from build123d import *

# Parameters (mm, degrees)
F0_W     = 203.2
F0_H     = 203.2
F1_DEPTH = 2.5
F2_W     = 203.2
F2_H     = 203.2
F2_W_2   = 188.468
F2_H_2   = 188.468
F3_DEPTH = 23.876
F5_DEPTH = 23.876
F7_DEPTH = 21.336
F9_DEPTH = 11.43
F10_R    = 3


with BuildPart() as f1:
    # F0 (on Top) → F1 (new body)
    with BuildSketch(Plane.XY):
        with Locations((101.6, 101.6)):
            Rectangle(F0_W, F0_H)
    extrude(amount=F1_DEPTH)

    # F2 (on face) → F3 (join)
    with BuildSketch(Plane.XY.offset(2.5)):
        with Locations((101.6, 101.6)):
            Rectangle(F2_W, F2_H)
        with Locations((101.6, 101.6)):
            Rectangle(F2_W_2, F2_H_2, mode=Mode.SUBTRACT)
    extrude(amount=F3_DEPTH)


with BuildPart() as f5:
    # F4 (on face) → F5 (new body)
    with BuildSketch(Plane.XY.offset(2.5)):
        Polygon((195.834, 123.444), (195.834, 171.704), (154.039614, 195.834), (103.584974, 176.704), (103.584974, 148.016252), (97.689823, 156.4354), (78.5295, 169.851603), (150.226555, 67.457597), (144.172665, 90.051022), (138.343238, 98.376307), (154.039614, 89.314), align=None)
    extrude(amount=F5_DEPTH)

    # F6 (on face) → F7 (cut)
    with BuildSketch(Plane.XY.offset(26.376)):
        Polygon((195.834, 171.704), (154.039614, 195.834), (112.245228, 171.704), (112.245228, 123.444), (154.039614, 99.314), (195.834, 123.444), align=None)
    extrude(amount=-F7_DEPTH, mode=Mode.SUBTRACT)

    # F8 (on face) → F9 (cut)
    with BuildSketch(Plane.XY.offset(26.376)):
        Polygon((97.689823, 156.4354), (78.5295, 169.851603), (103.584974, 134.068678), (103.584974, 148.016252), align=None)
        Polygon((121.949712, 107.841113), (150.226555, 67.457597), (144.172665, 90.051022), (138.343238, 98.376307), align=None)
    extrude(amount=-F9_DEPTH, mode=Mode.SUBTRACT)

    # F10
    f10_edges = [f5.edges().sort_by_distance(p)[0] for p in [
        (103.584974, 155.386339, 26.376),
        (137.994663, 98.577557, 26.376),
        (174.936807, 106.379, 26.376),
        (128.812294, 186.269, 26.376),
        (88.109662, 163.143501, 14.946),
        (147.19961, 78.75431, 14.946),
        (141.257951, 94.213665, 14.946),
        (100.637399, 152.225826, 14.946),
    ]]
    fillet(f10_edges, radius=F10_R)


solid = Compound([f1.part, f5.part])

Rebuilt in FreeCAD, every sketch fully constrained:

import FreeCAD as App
import Part
import Sketcher
Q = App.Units.Quantity


def edges_at(feature, points):
    """Names of the edges that pass closest to the given points."""
    edges = feature.Shape.Edges
    near = lambda p: min(range(len(edges)), key=lambda i: edges[i].distToShape(Part.Vertex(*p))[0])
    return sorted({f"Edge{near(p) + 1}" for p in points})


def add_polygon(sketch, points):
    """Adds a closed chain of lines whose ends are joined by coincident constraints."""
    first, n = sketch.GeometryCount, len(points)
    for a, b in zip(points, points[1:] + points[:1]):
        sketch.addGeometry(Part.LineSegment(App.Vector(*a, 0), App.Vector(*b, 0)), False)
    for i in range(n):
        sketch.addConstraint(Sketcher.Constraint("Coincident", first + i, 2, first + (i + 1) % n, 1))

doc = App.newDocument("Part")
body = doc.addObject("PartDesign::Body", "Body")

sketch1 = body.newObject("Sketcher::SketchObject", "Sketch")
sketch1.AttachmentSupport = (doc.getObject("XY_Plane"), [""])
sketch1.MapMode = "FlatFace"
add_polygon(sketch1, [(0, 203), (0, 0), (203, 0), (203, 203)])
sketch1.addConstraint([
    Sketcher.Constraint("Vertical", 0),
    Sketcher.Constraint("Horizontal", 1),
    Sketcher.Constraint("Vertical", 2),
    Sketcher.Constraint("Horizontal", 3),
    Sketcher.Constraint("Coincident", 0, 2, -1, 1),
    Sketcher.Constraint("Equal", 3, 0),
    Sketcher.Constraint("DistanceX", 1, 1, 1, 2, Q("8 in")),
])
pad1 = body.newObject("PartDesign::Pad", "Pad")
pad1.Profile = sketch1
pad1.Length = 2.5

sketch2 = body.newObject("Sketcher::SketchObject", "Sketch001")
sketch2.AttachmentSupport = (doc.getObject("XY_Plane"), [""])
sketch2.MapMode = "FlatFace"
sketch2.AttachmentOffset = App.Placement(App.Vector(0, 0, 2.5), App.Rotation())
add_polygon(sketch2, [(0, 203), (0, 0), (203, 0), (203, 203)])
add_polygon(sketch2, [(196, 7), (7, 7), (7, 196), (196, 196)])
sketch2.addConstraint([
    Sketcher.Constraint("Vertical", 0),
    Sketcher.Constraint("Horizontal", 1),
    Sketcher.Constraint("Vertical", 2),
    Sketcher.Constraint("Horizontal", 3),
    Sketcher.Constraint("Horizontal", 4),
    Sketcher.Constraint("Vertical", 5),
    Sketcher.Constraint("Horizontal", 6),
    Sketcher.Constraint("Vertical", 7),
    Sketcher.Constraint("Coincident", 0, 2, -1, 1),
    Sketcher.Constraint("Equal", 3, 0),
    Sketcher.Constraint("Equal", 6, 5),
    Sketcher.Constraint("DistanceX", 1, 1, 1, 2, Q("8 in")),
    Sketcher.Constraint("DistanceX", 4, 2, 4, 1, Q("7.42 in")),
    Sketcher.Constraint("DistanceX", -1, 1, 4, 2, Q("0.29 in")),
    Sketcher.Constraint("DistanceY", -1, 1, 4, 2, Q("0.29 in")),
])
pad2 = body.newObject("PartDesign::Pad", "Pad001")
pad2.Profile = sketch2
pad2.Length = Q("0.94 in")
body2 = doc.addObject("PartDesign::Body", "Body001")

sketch3 = body2.newObject("Sketcher::SketchObject", "Sketch002")
sketch3.AttachmentSupport = (doc.getObject("XY_Plane001"), [""])
sketch3.MapMode = "FlatFace"
sketch3.AttachmentOffset = App.Placement(App.Vector(0, 0, 2.5), App.Rotation())
add_polygon(sketch3, [(196, 123), (196, 172), (154, 196), (104, 177), (104, 148), (98, 156), (79, 170), (150, 67), (144, 90), (138, 98), (154, 89)])
sketch3.addConstraint([
    Sketcher.Constraint("Vertical", 0),
    Sketcher.Constraint("Vertical", 3),
    Sketcher.Constraint("Parallel", 4, 6),
    Sketcher.Constraint("Parallel", 6, 8),
    Sketcher.Constraint("Parallel", 1, 9),
    Sketcher.Constraint("Vertical", 1, 2, 9, 2),
    Sketcher.Constraint("Equal", 5, 7),
    Sketcher.Constraint("Equal", 2, 10),
    Sketcher.Constraint("DistanceY", 0, 1, 0, 2, Q("1.9 in")),
    Sketcher.Constraint("Angle", 1, Q("150 deg")),
    Sketcher.Constraint("Angle", 4, Q("125 deg")),
    Sketcher.Constraint("Angle", 5, Q("144.999999 deg")),
    Sketcher.Constraint("Angle", 7, Q("105 deg")),
    Sketcher.Constraint("Distance", 1, Q("1.9 in")),
    Sketcher.Constraint("DistanceX", -1, 1, 0, 2, Q("7.71 in")),
    Sketcher.Constraint("DistanceY", -1, 1, 0, 2, Q("6.76 in")),
    Sketcher.Constraint("Distance", 2, 53.9595),
    Sketcher.Constraint("Distance", 6, 125.000001),
    Sketcher.Constraint("DistanceY", -1, 1, 2, 2, 176.704),
    Sketcher.Constraint("DistanceY", -1, 1, 4, 2, 156.4354),
    Sketcher.Constraint("DistanceX", -1, 1, 5, 2, 78.5295),
    Sketcher.Constraint("Distance", 4, 10.277882),
])
pad3 = body2.newObject("PartDesign::Pad", "Pad002")
pad3.Profile = sketch3
pad3.Length = Q("0.94 in")

sketch4 = body2.newObject("Sketcher::SketchObject", "Sketch003")
sketch4.AttachmentSupport = (doc.getObject("XY_Plane001"), [""])
sketch4.MapMode = "FlatFace"
sketch4.AttachmentOffset = App.Placement(App.Vector(0, 0, 26.376), App.Rotation())
add_polygon(sketch4, [(196, 172), (154, 196), (112, 172), (112, 123), (154, 99), (196, 123)])
sketch4.addConstraint([
    Sketcher.Constraint("Vertical", 2),
    Sketcher.Constraint("Vertical", 5),
    Sketcher.Constraint("Parallel", 0, 3),
    Sketcher.Constraint("Parallel", 1, 4),
    Sketcher.Constraint("Horizontal", 2, 2, 4, 2),
    Sketcher.Constraint("Horizontal", 1, 2, 5, 2),
    Sketcher.Constraint("Vertical", 0, 2, 3, 2),
    Sketcher.Constraint("DistanceY", 2, 2, 2, 1, Q("1.9 in")),
    Sketcher.Constraint("Angle", 0, Q("150 deg")),
    Sketcher.Constraint("Distance", 0, Q("1.9 in")),
    Sketcher.Constraint("DistanceY", -1, 1, 0, 2, Q("7.71 in")),
    Sketcher.Constraint("DistanceX", -1, 1, 4, 2, Q("7.71 in")),
])
pocket1 = body2.newObject("PartDesign::Pocket", "Pocket")
pocket1.Profile = sketch4
pocket1.Length = Q("0.84 in")

sketch5 = body2.newObject("Sketcher::SketchObject", "Sketch004")
sketch5.AttachmentSupport = (doc.getObject("XY_Plane001"), [""])
sketch5.MapMode = "FlatFace"
sketch5.AttachmentOffset = App.Placement(App.Vector(0, 0, 26.376), App.Rotation())
add_polygon(sketch5, [(98, 156), (79, 170), (104, 134), (104, 148)])
add_polygon(sketch5, [(122, 108), (150, 67), (144, 90), (138, 98)])
sketch5.addConstraint([
    Sketcher.Constraint("Vertical", 2),
    Sketcher.Constraint("Parallel", 1, 3),
    Sketcher.Constraint("Parallel", 3, 4),
    Sketcher.Constraint("Parallel", 4, 6),
    Sketcher.Constraint("Equal", 0, 5),
    Sketcher.Constraint("Angle", 0, Q("144.999999 deg")),
    Sketcher.Constraint("Angle", 1, Q("-55 deg")),
    Sketcher.Constraint("Angle", 5, Q("105 deg")),
    Sketcher.Constraint("Angle", 7, Q("150.000002 deg")),
    Sketcher.Constraint("DistanceX", -1, 1, 0, 2, 78.5295),
    Sketcher.Constraint("DistanceY", -1, 1, 3, 2, 156.4354),
    Sketcher.Constraint("Distance", 3, 10.277882),
    Sketcher.Constraint("Distance", 4, 49.299171),
    Sketcher.Constraint("DistanceY", 2, 1, 2, 2, 13.947574),
    Sketcher.Constraint("DistanceX", -1, 1, 6, 2, 138.343238),
    Sketcher.Constraint("DistanceY", 4, 2, 1, 2, 66.611081),
])
pocket2 = body2.newObject("PartDesign::Pocket", "Pocket001")
pocket2.Profile = sketch5
pocket2.Length = Q("0.45 in")
doc.recompute()

fillet = body2.newObject("PartDesign::Fillet", "Fillet")
fillet.Base = (pocket2, edges_at(pocket2, [
    (103.585, 155.386, 26.376),
    (130.146, 103.109, 26.376),
    (174.937, 106.379, 26.376),
    (128.812, 186.269, 26.376),
    (88.11, 163.144, 14.946),
    (147.2, 78.754, 14.946),
    (141.258, 94.214, 14.946),
    (100.637, 152.226, 14.946),
]))
fillet.Radius = 3

doc.recompute()
